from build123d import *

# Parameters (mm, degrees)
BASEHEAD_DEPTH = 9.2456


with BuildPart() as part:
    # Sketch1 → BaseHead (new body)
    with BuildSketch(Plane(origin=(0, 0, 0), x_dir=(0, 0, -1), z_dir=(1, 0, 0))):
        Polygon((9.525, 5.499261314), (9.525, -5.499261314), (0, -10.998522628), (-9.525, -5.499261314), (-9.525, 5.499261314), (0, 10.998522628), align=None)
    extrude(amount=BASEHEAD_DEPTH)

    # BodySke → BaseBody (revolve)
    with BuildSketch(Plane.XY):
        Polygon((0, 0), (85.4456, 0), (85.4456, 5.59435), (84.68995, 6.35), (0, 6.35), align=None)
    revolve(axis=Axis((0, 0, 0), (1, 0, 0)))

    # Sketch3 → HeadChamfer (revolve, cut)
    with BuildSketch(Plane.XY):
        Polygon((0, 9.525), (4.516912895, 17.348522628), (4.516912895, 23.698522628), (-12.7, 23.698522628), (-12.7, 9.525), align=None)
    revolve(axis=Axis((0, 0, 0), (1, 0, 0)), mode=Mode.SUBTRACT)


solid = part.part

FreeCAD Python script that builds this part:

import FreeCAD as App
import Part
import Sketcher
Q = App.Units.Quantity

doc = App.newDocument("Part")
body = doc.addObject("PartDesign::Body", "Body")

sketch1 = doc.addObject("Sketcher::SketchObject", "Sketch")
body.addObject(sketch1)
sketch1.AttachmentSupport = (doc.YZ_Plane, [""])
sketch1.MapMode = "FlatFace"
sketch1.addGeometry([
    Part.LineSegment(App.Vector(-5, -10, 0), App.Vector(5, -10, 0)),
    Part.LineSegment(App.Vector(5, -10, 0), App.Vector(11, 0, 0)),
    Part.LineSegment(App.Vector(11, 0, 0), App.Vector(5, 10, 0)),
    Part.LineSegment(App.Vector(5, 10, 0), App.Vector(-5, 10, 0)),
    Part.LineSegment(App.Vector(-5, 10, 0), App.Vector(-11, 0, 0)),
    Part.LineSegment(App.Vector(-11, 0, 0), App.Vector(-5, -10, 0)),
], False)
sketch1.addConstraint([
    Sketcher.Constraint("Coincident", 0, 2, 1, 1),
    Sketcher.Constraint("Coincident", 1, 2, 2, 1),
    Sketcher.Constraint("Coincident", 2, 2, 3, 1),
    Sketcher.Constraint("Coincident", 3, 2, 4, 1),
    Sketcher.Constraint("Coincident", 4, 2, 5, 1),
    Sketcher.Constraint("Coincident", 5, 2, 0, 1),
    Sketcher.Constraint("Horizontal", 0),
    Sketcher.Constraint("Horizontal", 3),
    Sketcher.Constraint("Symmetric", 0, 2, 3, 2, -1, 1),
    Sketcher.Constraint("Symmetric", 1, 2, 4, 2, -1, 1),
    Sketcher.Constraint("PointOnObject", 1, 2, -1),
    Sketcher.Constraint("Parallel", 2, 5),
    Sketcher.Constraint("Vertical", 0, 2, 2, 2),
    Sketcher.Constraint("Angle", 1, Q("60 deg")),
    Sketcher.Constraint("DistanceY", 0, 2, 2, 2, Q("0.75 in")),
    Sketcher.Constraint("DistanceX", 0, 1, 0, 2, Q("10.998523 mm")),
])
pad1 = doc.addObject("PartDesign::Pad", "Pad")
body.addObject(pad1)
pad1.Profile = sketch1
pad1.Length = Q("0.364 in")

sketch2 = doc.addObject("Sketcher::SketchObject", "Sketch001")
body.addObject(sketch2)
sketch2.AttachmentSupport = (doc.XY_Plane, [""])
sketch2.MapMode = "FlatFace"
sketch2.addGeometry([
    Part.LineSegment(App.Vector(0, 0, 0), App.Vector(85.4, 0, 0)),
    Part.LineSegment(App.Vector(85.4, 0, 0), App.Vector(85.4, 5.6, 0)),
    Part.LineSegment(App.Vector(85.4, 5.6, 0), App.Vector(84.7, 6.3, 0)),
    Part.LineSegment(App.Vector(84.7, 6.3, 0), App.Vector(0, 6.3, 0)),
    Part.LineSegment(App.Vector(0, 6.3, 0), App.Vector(0, 0, 0)),
], False)
sketch2.addConstraint([
    Sketcher.Constraint("Coincident", 0, 2, 1, 1),
    Sketcher.Constraint("Coincident", 1, 2, 2, 1),
    Sketcher.Constraint("Coincident", 2, 2, 3, 1),
    Sketcher.Constraint("Coincident", 3, 2, 4, 1),
    Sketcher.Constraint("Coincident", 4, 2, 0, 1),
    Sketcher.Constraint("Horizontal", 0),
    Sketcher.Constraint("Vertical", 1),
    Sketcher.Constraint("Horizontal", 3),
    Sketcher.Constraint("Vertical", 4),
    Sketcher.Constraint("Coincident", 4, 2, -1, 1),
    Sketcher.Constraint("Angle", 2, Q("135 deg")),
    Sketcher.Constraint("DistanceY", 4, 2, 4, 1, Q("0.25 in")),
    Sketcher.Constraint("DistanceX", 0, 1, 0, 2, Q("3.364 in")),
    Sketcher.Constraint("DistanceX", 3, 2, 3, 1, Q("84.68995 mm")),
])
revolution = doc.addObject("PartDesign::Revolution", "Revolution")
body.addObject(revolution)
revolution.Profile = sketch2
revolution.ReferenceAxis = (sketch2, ["H_Axis"])
revolution.Angle = 360

sketch3 = doc.addObject("Sketcher::SketchObject", "Sketch002")
body.addObject(sketch3)
sketch3.AttachmentSupport = (doc.XY_Plane, [""])
sketch3.MapMode = "FlatFace"
sketch3.addGeometry([
    Part.LineSegment(App.Vector(0, 10, 0), App.Vector(5, 17, 0)),
    Part.LineSegment(App.Vector(5, 17, 0), App.Vector(5, 24, 0)),
    Part.LineSegment(App.Vector(5, 24, 0), App.Vector(-13, 24, 0)),
    Part.LineSegment(App.Vector(-13, 24, 0), App.Vector(-13, 10, 0)),
    Part.LineSegment(App.Vector(-13, 10, 0), App.Vector(0, 10, 0)),
], False)
sketch3.addConstraint([
    Sketcher.Constraint("Coincident", 0, 2, 1, 1),
    Sketcher.Constraint("Coincident", 1, 2, 2, 1),
    Sketcher.Constraint("Coincident", 2, 2, 3, 1),
    Sketcher.Constraint("Coincident", 3, 2, 4, 1),
    Sketcher.Constraint("Coincident", 4, 2, 0, 1),
    Sketcher.Constraint("Vertical", 1),
    Sketcher.Constraint("Horizontal", 2),
    Sketcher.Constraint("Vertical", 3),
    Sketcher.Constraint("Horizontal", 4),
    Sketcher.Constraint("PointOnObject", 4, 2, -2),
    Sketcher.Constraint("DistanceX", 4, 1, 4, 2, Q("0.5 in")),
    Sketcher.Constraint("Angle", 0, Q("60 deg")),
    Sketcher.Constraint("DistanceY", 1, 1, 1, 2, Q("0.25 in")),
    Sketcher.Constraint("DistanceY", -1, 1, 3, 2, Q("0.375 in")),
    Sketcher.Constraint("DistanceX", 2, 2, 2, 1, Q("17.216913 mm")),
])
groove = doc.addObject("PartDesign::Groove", "Groove")
body.addObject(groove)
groove.Profile = sketch3
groove.ReferenceAxis = (sketch3, ["H_Axis"])
groove.Angle = 360

doc.recompute()
